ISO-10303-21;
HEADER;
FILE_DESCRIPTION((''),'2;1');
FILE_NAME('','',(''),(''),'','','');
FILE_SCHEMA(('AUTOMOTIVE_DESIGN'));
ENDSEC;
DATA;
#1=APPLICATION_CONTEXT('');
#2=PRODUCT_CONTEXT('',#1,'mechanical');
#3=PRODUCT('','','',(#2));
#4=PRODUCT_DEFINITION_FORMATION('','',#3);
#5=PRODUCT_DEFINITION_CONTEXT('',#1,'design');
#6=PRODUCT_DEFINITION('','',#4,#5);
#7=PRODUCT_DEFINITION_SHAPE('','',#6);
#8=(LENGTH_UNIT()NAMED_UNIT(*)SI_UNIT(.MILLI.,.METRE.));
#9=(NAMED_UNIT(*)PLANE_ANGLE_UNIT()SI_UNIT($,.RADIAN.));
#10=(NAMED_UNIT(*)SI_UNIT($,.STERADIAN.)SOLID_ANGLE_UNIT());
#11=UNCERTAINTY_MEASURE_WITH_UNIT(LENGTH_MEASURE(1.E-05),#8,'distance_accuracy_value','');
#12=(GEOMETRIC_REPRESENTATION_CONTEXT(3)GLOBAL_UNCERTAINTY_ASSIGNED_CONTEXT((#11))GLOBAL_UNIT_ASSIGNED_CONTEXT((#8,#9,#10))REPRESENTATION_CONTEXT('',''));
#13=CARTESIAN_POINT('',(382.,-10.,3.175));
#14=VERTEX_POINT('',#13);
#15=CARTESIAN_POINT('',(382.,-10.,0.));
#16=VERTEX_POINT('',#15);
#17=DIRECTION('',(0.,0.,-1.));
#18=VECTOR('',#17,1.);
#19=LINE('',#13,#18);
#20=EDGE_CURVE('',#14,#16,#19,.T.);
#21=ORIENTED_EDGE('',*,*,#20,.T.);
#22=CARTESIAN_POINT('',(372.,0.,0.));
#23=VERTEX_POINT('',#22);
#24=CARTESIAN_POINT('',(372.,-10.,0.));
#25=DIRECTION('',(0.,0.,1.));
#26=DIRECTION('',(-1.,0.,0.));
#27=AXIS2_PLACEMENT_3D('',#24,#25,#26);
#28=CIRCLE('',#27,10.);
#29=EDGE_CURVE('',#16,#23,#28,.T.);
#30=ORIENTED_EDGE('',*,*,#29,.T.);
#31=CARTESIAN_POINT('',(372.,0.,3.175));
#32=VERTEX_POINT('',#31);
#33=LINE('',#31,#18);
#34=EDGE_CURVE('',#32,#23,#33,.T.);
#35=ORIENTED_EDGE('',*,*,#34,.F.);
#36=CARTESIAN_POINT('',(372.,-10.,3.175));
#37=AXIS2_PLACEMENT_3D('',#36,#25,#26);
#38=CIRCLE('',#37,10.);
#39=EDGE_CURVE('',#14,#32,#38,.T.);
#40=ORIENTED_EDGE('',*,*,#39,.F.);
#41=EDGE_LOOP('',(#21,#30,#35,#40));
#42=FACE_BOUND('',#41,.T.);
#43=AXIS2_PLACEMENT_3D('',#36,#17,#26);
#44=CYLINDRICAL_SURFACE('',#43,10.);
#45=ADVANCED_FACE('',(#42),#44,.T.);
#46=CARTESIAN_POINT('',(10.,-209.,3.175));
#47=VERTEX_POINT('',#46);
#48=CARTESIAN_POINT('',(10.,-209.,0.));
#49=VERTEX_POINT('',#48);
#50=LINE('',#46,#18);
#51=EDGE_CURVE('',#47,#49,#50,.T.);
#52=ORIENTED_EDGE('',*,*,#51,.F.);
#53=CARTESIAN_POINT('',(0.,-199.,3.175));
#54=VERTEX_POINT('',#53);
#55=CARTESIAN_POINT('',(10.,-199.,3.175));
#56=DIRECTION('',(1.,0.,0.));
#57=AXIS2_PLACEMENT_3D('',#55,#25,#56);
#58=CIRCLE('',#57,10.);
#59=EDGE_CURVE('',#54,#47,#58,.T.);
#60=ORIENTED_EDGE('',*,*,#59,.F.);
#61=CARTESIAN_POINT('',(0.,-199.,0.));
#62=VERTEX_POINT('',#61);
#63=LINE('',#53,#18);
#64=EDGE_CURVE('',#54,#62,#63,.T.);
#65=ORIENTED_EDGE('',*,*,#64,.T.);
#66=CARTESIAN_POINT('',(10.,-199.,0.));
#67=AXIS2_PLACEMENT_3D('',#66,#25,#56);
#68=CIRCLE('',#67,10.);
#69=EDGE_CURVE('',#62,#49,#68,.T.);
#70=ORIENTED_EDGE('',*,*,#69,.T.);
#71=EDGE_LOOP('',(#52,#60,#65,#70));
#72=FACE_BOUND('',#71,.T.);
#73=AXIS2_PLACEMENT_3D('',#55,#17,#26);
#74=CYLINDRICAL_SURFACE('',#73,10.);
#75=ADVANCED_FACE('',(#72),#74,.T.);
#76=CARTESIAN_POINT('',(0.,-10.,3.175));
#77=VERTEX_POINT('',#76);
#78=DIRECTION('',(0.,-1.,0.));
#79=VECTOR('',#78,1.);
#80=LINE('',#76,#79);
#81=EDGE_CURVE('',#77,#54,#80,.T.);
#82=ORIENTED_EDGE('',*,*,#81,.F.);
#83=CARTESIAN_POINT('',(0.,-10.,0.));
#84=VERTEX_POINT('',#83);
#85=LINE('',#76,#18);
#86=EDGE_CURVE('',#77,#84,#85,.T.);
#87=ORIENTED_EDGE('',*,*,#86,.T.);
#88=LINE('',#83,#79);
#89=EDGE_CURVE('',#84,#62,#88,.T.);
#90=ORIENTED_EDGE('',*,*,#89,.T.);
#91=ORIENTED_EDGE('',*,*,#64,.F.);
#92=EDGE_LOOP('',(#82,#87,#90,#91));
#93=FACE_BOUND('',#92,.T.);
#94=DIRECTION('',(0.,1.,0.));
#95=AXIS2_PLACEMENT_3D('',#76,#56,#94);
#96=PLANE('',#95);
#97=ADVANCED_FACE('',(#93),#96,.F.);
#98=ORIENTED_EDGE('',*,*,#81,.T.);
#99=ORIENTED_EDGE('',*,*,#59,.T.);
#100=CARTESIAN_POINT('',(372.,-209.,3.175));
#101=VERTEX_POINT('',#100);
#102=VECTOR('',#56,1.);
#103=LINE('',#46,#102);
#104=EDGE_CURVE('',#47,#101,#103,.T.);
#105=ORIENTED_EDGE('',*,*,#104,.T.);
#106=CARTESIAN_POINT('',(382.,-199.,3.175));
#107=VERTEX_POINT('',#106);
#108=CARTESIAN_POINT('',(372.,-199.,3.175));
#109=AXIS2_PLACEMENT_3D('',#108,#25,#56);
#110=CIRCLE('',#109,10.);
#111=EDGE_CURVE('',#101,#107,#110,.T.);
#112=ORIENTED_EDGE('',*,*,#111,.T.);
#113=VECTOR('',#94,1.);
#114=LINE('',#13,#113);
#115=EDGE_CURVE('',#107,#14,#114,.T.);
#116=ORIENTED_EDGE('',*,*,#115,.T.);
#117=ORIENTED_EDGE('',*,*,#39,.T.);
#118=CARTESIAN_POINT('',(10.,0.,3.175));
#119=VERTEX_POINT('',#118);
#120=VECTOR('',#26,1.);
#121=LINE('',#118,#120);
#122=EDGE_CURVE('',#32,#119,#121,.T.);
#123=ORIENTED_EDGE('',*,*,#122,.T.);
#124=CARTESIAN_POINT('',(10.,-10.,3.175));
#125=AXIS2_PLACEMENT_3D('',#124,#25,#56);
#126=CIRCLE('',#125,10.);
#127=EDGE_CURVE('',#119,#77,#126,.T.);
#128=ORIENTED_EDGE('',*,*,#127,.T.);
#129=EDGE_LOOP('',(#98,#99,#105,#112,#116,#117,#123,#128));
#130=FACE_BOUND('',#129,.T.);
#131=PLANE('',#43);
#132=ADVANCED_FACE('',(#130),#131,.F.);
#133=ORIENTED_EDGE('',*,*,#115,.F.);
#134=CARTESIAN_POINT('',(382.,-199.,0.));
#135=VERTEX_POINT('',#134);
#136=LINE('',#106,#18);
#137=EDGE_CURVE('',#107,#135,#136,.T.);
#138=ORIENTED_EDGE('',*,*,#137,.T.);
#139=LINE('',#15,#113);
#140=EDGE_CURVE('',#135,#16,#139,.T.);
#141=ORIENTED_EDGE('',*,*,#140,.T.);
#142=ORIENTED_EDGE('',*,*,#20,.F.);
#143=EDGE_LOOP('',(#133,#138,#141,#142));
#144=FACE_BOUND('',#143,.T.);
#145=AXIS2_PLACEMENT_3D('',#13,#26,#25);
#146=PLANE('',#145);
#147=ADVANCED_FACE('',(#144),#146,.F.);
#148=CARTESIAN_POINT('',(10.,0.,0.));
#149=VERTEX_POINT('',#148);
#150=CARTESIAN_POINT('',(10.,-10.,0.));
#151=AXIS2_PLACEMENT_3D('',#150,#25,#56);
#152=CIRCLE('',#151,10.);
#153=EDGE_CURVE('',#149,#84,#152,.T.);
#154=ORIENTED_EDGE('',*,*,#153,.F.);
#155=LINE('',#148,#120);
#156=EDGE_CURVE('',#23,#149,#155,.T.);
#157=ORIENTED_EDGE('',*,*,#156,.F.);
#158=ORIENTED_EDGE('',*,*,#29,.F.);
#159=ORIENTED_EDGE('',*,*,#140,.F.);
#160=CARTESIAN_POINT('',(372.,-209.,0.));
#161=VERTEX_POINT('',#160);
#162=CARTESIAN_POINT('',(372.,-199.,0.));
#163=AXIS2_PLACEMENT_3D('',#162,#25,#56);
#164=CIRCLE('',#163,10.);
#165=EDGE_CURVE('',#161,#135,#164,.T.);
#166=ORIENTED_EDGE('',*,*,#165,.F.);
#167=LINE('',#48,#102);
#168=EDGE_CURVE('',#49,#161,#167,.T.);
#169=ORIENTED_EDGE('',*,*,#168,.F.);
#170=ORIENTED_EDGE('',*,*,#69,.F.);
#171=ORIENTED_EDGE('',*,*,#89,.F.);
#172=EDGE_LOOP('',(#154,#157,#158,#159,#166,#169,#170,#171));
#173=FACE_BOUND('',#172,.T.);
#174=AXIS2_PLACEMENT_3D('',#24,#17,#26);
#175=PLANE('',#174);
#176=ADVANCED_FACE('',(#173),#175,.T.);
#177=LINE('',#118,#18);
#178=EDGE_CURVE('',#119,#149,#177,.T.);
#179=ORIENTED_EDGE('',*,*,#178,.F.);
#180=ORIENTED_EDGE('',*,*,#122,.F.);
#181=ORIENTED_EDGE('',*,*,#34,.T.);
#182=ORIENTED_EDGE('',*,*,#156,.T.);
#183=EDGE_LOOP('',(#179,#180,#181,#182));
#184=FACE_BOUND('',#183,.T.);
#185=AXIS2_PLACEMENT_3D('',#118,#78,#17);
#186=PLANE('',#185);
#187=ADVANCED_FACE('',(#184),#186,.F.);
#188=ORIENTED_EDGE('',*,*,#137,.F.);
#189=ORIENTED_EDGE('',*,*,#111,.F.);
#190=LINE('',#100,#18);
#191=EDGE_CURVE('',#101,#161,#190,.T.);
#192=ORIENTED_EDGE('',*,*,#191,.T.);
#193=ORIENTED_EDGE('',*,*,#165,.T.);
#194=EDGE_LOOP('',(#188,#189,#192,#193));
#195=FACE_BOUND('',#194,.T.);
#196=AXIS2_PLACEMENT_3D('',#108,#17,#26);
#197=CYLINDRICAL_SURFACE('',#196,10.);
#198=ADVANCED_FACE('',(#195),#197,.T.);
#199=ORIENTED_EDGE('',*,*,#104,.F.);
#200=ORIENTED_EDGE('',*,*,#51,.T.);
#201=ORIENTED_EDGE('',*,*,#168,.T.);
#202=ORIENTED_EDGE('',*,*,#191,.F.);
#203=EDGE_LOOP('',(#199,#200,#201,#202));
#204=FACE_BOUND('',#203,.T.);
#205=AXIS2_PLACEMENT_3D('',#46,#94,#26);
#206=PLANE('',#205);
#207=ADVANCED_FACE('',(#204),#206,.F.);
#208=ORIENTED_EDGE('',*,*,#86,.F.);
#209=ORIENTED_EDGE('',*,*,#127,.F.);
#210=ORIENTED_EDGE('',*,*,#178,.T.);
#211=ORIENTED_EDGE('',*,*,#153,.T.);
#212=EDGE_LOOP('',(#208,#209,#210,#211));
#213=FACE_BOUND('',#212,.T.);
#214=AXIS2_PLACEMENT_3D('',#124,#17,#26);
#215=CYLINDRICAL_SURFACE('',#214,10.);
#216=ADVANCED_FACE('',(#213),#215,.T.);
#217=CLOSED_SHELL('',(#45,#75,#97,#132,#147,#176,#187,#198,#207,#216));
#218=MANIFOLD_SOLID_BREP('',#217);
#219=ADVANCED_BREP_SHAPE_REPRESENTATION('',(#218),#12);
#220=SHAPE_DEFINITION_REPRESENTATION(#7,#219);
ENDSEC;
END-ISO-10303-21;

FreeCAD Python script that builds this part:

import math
import FreeCAD as App
import Part
import Sketcher
from FreeCAD import Vector

doc = App.newDocument("Part")
body = doc.addObject("PartDesign::Body", "Body")

sketch1 = body.newObject("Sketcher::SketchObject", "Sketch")
sketch1.AttachmentSupport = (doc.getObject("XY_Plane"), [""])
sketch1.MapMode = "FlatFace"
sketch1.addGeometry([
    Part.LineSegment(Vector(372, 0, 0), Vector(10, 0, 0)),
    Part.ArcOfCircle(Part.Circle(Vector(10, -10, 0), Vector(0, 0, 1), 10), math.radians(90), math.radians(180)),
    Part.LineSegment(Vector(0, -10, 0), Vector(0, -199, 0)),
    Part.ArcOfCircle(Part.Circle(Vector(10, -199, 0), Vector(0, 0, 1), 10), math.radians(180), math.radians(270)),
    Part.LineSegment(Vector(10, -209, 0), Vector(372, -209, 0)),
    Part.ArcOfCircle(Part.Circle(Vector(372, -199, 0), Vector(0, 0, 1), 10), math.radians(-90), math.radians(0)),
    Part.LineSegment(Vector(382, -199, 0), Vector(382, -10, 0)),
    Part.ArcOfCircle(Part.Circle(Vector(372, -10, 0), Vector(0, 0, 1), 10), math.radians(0), math.radians(90)),
], False)
sketch1.addConstraint([
    Sketcher.Constraint("Tangent", 0, 2, 1, 1),
    Sketcher.Constraint("Tangent", 1, 2, 2, 1),
    Sketcher.Constraint("Tangent", 2, 2, 3, 1),
    Sketcher.Constraint("Tangent", 3, 2, 4, 1),
    Sketcher.Constraint("Tangent", 4, 2, 5, 1),
    Sketcher.Constraint("Tangent", 5, 2, 6, 1),
    Sketcher.Constraint("Tangent", 6, 2, 7, 1),
    Sketcher.Constraint("Tangent", 7, 2, 0, 1),
    Sketcher.Constraint("Horizontal", 0),
    Sketcher.Constraint("Vertical", 2),
    Sketcher.Constraint("Horizontal", 4),
    Sketcher.Constraint("Vertical", 6),
    Sketcher.Constraint("Equal", 1, 3),
    Sketcher.Constraint("Equal", 3, 5),
    Sketcher.Constraint("Equal", 5, 7),
    Sketcher.Constraint("PointOnObject", 0, 2, -1),
    Sketcher.Constraint("PointOnObject", 1, 2, -2),
    Sketcher.Constraint("Radius", 1, 10.0),
    Sketcher.Constraint("DistanceX", 0, 2, 0, 1, 362.0),
    Sketcher.Constraint("DistanceY", 2, 2, 2, 1, 189.0),
])
pad1 = body.newObject("PartDesign::Pad", "Pad")
pad1.Profile = sketch1
pad1.Length = 3.175

doc.recompute()
